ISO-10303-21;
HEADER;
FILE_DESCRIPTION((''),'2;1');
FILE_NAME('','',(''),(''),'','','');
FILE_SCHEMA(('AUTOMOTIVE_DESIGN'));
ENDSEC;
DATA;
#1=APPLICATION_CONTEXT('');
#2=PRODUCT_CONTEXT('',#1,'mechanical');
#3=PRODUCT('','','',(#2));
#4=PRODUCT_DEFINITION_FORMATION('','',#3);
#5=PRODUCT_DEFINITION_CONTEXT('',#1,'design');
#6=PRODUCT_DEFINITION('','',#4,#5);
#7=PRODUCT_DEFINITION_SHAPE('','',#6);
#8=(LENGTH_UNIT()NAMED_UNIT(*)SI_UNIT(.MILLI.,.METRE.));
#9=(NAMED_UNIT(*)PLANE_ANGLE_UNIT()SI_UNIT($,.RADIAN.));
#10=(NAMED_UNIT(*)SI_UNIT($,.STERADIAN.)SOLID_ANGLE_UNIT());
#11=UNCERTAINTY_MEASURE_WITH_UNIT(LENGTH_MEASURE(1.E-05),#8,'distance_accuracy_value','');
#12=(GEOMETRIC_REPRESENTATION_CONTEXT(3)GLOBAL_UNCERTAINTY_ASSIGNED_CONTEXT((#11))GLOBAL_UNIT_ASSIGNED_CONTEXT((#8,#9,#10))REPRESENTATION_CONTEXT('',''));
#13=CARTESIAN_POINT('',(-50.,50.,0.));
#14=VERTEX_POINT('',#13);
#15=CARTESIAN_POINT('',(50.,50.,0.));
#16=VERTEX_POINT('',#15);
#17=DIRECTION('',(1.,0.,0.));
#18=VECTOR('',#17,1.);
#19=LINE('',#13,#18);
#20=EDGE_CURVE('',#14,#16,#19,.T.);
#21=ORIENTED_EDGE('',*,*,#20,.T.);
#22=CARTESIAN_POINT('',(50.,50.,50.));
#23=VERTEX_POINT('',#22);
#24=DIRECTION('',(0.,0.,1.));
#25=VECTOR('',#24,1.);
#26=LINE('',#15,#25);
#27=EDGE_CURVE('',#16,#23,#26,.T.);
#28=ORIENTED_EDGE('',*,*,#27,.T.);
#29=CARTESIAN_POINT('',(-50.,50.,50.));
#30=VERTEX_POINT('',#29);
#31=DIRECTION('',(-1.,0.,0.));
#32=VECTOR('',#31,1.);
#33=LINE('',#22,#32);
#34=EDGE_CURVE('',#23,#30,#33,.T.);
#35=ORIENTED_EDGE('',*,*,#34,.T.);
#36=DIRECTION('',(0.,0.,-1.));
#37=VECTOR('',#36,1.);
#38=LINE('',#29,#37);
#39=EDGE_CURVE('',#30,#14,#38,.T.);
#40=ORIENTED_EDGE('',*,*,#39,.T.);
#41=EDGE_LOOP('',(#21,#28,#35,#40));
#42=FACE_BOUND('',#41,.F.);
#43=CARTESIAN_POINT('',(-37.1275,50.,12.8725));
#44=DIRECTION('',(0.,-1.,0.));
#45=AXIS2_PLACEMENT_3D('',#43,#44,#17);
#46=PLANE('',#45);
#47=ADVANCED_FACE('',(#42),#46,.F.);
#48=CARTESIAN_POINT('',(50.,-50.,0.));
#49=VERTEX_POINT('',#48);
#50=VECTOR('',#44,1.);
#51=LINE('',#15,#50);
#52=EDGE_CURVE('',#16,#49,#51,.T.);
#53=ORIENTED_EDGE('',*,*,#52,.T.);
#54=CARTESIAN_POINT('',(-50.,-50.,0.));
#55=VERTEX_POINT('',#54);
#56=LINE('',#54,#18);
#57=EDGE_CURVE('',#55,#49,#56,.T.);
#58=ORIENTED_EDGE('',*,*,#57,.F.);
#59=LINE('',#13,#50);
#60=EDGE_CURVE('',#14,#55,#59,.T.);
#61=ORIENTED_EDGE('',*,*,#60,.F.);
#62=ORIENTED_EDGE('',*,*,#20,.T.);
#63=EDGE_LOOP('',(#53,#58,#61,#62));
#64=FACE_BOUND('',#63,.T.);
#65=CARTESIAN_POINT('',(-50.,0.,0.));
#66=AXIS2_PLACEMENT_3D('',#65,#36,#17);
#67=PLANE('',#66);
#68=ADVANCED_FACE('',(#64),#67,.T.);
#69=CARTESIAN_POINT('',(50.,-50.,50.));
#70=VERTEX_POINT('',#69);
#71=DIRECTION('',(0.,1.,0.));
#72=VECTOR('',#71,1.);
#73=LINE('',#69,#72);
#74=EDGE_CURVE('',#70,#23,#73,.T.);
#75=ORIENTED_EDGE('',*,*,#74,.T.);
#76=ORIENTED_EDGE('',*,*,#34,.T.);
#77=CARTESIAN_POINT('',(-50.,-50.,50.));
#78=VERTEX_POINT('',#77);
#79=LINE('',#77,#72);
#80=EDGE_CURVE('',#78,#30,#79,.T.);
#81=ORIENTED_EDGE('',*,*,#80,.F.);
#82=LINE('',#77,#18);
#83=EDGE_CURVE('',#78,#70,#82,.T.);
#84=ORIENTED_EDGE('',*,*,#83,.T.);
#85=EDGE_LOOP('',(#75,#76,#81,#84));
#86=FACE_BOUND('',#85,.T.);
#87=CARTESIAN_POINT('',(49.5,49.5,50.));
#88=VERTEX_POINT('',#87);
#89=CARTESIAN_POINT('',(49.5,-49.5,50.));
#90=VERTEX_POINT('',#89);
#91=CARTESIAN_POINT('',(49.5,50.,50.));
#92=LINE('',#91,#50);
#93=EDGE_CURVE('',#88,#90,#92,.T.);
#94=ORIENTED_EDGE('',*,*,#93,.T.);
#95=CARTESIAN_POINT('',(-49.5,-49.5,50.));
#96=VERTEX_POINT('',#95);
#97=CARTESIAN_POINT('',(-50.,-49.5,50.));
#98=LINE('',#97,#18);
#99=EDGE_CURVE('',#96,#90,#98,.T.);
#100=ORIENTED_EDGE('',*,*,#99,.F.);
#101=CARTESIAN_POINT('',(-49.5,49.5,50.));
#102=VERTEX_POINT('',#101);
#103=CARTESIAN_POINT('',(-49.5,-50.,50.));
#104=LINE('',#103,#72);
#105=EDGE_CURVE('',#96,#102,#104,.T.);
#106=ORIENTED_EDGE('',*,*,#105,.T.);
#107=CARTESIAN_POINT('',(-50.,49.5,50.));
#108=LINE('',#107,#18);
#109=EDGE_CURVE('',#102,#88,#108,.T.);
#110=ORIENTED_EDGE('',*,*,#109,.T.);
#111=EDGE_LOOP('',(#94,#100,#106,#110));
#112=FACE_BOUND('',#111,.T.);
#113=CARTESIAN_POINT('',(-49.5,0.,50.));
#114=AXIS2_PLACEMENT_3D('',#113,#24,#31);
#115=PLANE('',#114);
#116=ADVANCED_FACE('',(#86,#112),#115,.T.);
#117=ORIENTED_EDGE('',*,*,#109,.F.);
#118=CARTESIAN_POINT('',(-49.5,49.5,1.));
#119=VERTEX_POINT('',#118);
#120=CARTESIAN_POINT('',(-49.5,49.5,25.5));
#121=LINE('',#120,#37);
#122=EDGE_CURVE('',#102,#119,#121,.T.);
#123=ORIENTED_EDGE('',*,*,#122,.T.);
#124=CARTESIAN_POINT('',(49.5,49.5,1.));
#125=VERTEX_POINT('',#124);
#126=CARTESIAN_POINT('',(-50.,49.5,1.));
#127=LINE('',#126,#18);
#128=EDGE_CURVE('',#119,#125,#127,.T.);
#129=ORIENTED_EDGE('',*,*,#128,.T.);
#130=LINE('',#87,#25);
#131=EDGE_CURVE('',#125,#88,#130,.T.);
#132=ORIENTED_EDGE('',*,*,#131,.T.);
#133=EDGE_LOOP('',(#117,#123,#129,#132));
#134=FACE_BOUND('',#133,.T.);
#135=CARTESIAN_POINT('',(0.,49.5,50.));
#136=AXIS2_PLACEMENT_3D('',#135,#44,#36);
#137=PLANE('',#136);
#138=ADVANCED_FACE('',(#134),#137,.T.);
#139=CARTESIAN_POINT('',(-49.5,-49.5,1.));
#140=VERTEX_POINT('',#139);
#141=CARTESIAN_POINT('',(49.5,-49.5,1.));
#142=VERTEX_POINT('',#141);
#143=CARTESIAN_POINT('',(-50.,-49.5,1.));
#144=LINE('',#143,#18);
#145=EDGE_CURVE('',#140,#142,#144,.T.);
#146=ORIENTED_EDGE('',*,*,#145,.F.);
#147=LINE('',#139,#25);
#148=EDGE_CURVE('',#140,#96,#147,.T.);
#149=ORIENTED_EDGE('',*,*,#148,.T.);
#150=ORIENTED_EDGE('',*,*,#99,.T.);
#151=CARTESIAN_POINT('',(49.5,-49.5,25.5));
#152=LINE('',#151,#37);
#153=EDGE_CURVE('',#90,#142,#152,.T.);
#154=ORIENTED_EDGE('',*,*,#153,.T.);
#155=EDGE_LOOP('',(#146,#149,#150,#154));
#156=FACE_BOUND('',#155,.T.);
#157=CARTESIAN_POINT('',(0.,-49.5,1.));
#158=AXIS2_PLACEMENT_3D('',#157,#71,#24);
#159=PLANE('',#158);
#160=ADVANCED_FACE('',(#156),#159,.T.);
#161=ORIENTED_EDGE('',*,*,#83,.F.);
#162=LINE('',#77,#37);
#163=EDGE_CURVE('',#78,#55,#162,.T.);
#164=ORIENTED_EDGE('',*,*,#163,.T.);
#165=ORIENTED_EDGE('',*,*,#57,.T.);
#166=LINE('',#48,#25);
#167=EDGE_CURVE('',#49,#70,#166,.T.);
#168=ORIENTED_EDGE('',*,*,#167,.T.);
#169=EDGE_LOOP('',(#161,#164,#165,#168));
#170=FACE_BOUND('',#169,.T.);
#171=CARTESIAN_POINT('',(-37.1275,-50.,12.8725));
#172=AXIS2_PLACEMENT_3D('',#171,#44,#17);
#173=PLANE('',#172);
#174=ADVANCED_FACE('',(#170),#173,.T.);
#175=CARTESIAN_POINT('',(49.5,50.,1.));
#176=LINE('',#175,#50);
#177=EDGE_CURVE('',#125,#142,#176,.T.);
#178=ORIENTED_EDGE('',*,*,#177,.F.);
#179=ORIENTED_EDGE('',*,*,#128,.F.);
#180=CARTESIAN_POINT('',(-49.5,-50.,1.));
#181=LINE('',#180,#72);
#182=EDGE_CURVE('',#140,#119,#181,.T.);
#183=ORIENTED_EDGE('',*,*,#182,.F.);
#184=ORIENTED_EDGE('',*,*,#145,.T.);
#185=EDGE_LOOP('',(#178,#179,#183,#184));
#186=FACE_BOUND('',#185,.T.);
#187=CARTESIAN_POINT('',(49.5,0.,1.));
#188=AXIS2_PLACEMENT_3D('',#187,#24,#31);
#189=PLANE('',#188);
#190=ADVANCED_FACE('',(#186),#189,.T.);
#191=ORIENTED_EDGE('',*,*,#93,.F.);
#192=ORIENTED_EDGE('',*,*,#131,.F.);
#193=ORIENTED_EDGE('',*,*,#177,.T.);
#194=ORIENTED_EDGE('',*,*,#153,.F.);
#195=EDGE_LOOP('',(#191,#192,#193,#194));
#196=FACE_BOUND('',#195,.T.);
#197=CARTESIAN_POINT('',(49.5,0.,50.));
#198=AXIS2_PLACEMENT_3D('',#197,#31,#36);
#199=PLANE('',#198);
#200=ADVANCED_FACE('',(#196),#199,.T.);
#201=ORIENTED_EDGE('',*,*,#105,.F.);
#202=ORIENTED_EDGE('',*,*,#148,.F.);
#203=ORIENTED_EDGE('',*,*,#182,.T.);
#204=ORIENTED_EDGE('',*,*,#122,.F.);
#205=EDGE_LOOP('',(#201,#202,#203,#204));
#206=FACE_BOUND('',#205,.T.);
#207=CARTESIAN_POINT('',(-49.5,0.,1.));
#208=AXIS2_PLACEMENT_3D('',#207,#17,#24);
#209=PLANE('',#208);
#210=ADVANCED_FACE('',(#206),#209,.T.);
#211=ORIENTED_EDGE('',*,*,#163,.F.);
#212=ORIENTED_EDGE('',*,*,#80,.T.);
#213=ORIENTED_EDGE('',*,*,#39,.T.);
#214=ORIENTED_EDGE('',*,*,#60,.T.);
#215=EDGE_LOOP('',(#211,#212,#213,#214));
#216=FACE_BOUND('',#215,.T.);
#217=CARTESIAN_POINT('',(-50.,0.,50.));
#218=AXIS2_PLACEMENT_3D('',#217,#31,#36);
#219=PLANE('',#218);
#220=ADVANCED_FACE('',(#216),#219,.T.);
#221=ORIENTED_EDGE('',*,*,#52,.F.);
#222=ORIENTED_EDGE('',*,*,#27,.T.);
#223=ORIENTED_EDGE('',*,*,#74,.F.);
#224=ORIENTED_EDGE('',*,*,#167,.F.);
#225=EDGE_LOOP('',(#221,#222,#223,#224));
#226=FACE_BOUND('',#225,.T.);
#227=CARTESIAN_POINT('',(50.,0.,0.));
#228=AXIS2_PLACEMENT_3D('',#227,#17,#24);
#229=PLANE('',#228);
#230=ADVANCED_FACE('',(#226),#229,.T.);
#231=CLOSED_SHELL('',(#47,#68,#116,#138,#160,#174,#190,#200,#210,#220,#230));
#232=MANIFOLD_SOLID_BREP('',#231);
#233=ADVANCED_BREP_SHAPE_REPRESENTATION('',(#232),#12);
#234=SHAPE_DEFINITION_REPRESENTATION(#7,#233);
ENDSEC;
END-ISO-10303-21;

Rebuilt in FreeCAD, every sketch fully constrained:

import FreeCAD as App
import Part
import Sketcher

V = App.Vector
Q = App.Units.Quantity

doc = App.newDocument("Part")
body = doc.addObject("PartDesign::Body", "Body")

sketch1 = body.newObject("Sketcher::SketchObject", "Sketch")
sketch1.AttachmentSupport = (doc.getObject("XZ_Plane"), [""])
sketch1.MapMode = "FlatFace"
sketch1.addGeometry(Part.LineSegment(V(-50, 50, 0), V(-50, 0, 0)), False)
sketch1.addGeometry(Part.LineSegment(V(-50, 0, 0), V(50, 0, 0)), False)
sketch1.addGeometry(Part.LineSegment(V(50, 0, 0), V(50, 50, 0)), False)
sketch1.addGeometry(Part.LineSegment(V(50, 50, 0), V(49.5, 50, 0)), False)
sketch1.addGeometry(Part.LineSegment(V(49.5, 50, 0), V(49.5, 1, 0)), False)
sketch1.addGeometry(Part.LineSegment(V(49.5, 1, 0), V(-49.5, 1, 0)), False)
sketch1.addGeometry(Part.LineSegment(V(-49.5, 1, 0), V(-49.5, 50, 0)), False)
sketch1.addGeometry(Part.LineSegment(V(-49.5, 50, 0), V(-50, 50, 0)), False)
sketch1.addConstraint(Sketcher.Constraint("Coincident", 0, 2, 1, 1))
sketch1.addConstraint(Sketcher.Constraint("Coincident", 1, 2, 2, 1))
sketch1.addConstraint(Sketcher.Constraint("Coincident", 2, 2, 3, 1))
sketch1.addConstraint(Sketcher.Constraint("Coincident", 3, 2, 4, 1))
sketch1.addConstraint(Sketcher.Constraint("Coincident", 4, 2, 5, 1))
sketch1.addConstraint(Sketcher.Constraint("Coincident", 5, 2, 6, 1))
sketch1.addConstraint(Sketcher.Constraint("Coincident", 6, 2, 7, 1))
sketch1.addConstraint(Sketcher.Constraint("Coincident", 7, 2, 0, 1))
sketch1.addConstraint(Sketcher.Constraint("Vertical", 0))
sketch1.addConstraint(Sketcher.Constraint("Horizontal", 1))
sketch1.addConstraint(Sketcher.Constraint("Vertical", 2))
sketch1.addConstraint(Sketcher.Constraint("Horizontal", 3))
sketch1.addConstraint(Sketcher.Constraint("Vertical", 4))
sketch1.addConstraint(Sketcher.Constraint("Horizontal", 5))
sketch1.addConstraint(Sketcher.Constraint("Vertical", 6))
sketch1.addConstraint(Sketcher.Constraint("Horizontal", 7))
sketch1.addConstraint(Sketcher.Constraint("Symmetric", 0, 2, 1, 2, -1, 1))
sketch1.addConstraint(Sketcher.Constraint("Symmetric", 3, 2, 6, 2, -2))
sketch1.addConstraint(Sketcher.Constraint("DistanceX", 1, 1, 1, 2, Q("100 mm")))
sketch1.addConstraint(Sketcher.Constraint("DistanceX", 5, 2, 5, 1, Q("99 mm")))
sketch1.addConstraint(Sketcher.Constraint("DistanceY", 0, 2, 0, 1, Q("50 mm")))
sketch1.addConstraint(Sketcher.Constraint("DistanceY", 4, 2, 4, 1, Q("49 mm")))
pad1 = body.newObject("PartDesign::Pad", "Pad")
pad1.Profile = sketch1
pad1.Length = 100
pad1.Midplane = True

sketch2 = body.newObject("Sketcher::SketchObject", "Sketch001")
sketch2.AttachmentSupport = (doc.getObject("YZ_Plane"), [""])
sketch2.MapMode = "FlatFace"
sketch2.addGeometry(Part.LineSegment(V(50, 0, 0), V(50, 50, 0)), False)
sketch2.addGeometry(Part.LineSegment(V(50, 50, 0), V(49.5, 50, 0)), False)
sketch2.addGeometry(Part.LineSegment(V(49.5, 50, 0), V(49.5, 1, 0)), False)
sketch2.addGeometry(Part.LineSegment(V(49.5, 1, 0), V(-49.5, 1, 0)), False)
sketch2.addGeometry(Part.LineSegment(V(-49.5, 1, 0), V(-49.5, 50, 0)), False)
sketch2.addGeometry(Part.LineSegment(V(-49.5, 50, 0), V(-50, 50, 0)), False)
sketch2.addGeometry(Part.LineSegment(V(-50, 50, 0), V(-50, 0, 0)), False)
sketch2.addGeometry(Part.LineSegment(V(-50, 0, 0), V(50, 0, 0)), False)
sketch2.addConstraint(Sketcher.Constraint("Coincident", 0, 2, 1, 1))
sketch2.addConstraint(Sketcher.Constraint("Coincident", 1, 2, 2, 1))
sketch2.addConstraint(Sketcher.Constraint("Coincident", 2, 2, 3, 1))
sketch2.addConstraint(Sketcher.Constraint("Coincident", 3, 2, 4, 1))
sketch2.addConstraint(Sketcher.Constraint("Coincident", 4, 2, 5, 1))
sketch2.addConstraint(Sketcher.Constraint("Coincident", 5, 2, 6, 1))
sketch2.addConstraint(Sketcher.Constraint("Coincident", 6, 2, 7, 1))
sketch2.addConstraint(Sketcher.Constraint("Coincident", 7, 2, 0, 1))
sketch2.addConstraint(Sketcher.Constraint("Vertical", 0))
sketch2.addConstraint(Sketcher.Constraint("Horizontal", 1))
sketch2.addConstraint(Sketcher.Constraint("Vertical", 2))
sketch2.addConstraint(Sketcher.Constraint("Horizontal", 3))
sketch2.addConstraint(Sketcher.Constraint("Vertical", 4))
sketch2.addConstraint(Sketcher.Constraint("Horizontal", 5))
sketch2.addConstraint(Sketcher.Constraint("Vertical", 6))
sketch2.addConstraint(Sketcher.Constraint("Horizontal", 7))
sketch2.addConstraint(Sketcher.Constraint("Symmetric", 6, 2, 7, 2, -1, 1))
sketch2.addConstraint(Sketcher.Constraint("Symmetric", 1, 2, 4, 2, -2))
sketch2.addConstraint(Sketcher.Constraint("DistanceX", 3, 2, 3, 1, Q("99 mm")))
sketch2.addConstraint(Sketcher.Constraint("DistanceX", 7, 1, 7, 2, Q("100 mm")))
sketch2.addConstraint(Sketcher.Constraint("DistanceY", 0, 1, 0, 2, Q("50 mm")))
sketch2.addConstraint(Sketcher.Constraint("DistanceY", 2, 2, 2, 1, Q("49 mm")))
pad2 = body.newObject("PartDesign::Pad", "Pad001")
pad2.Profile = sketch2
pad2.Length = 100
pad2.Midplane = True

doc.recompute()
